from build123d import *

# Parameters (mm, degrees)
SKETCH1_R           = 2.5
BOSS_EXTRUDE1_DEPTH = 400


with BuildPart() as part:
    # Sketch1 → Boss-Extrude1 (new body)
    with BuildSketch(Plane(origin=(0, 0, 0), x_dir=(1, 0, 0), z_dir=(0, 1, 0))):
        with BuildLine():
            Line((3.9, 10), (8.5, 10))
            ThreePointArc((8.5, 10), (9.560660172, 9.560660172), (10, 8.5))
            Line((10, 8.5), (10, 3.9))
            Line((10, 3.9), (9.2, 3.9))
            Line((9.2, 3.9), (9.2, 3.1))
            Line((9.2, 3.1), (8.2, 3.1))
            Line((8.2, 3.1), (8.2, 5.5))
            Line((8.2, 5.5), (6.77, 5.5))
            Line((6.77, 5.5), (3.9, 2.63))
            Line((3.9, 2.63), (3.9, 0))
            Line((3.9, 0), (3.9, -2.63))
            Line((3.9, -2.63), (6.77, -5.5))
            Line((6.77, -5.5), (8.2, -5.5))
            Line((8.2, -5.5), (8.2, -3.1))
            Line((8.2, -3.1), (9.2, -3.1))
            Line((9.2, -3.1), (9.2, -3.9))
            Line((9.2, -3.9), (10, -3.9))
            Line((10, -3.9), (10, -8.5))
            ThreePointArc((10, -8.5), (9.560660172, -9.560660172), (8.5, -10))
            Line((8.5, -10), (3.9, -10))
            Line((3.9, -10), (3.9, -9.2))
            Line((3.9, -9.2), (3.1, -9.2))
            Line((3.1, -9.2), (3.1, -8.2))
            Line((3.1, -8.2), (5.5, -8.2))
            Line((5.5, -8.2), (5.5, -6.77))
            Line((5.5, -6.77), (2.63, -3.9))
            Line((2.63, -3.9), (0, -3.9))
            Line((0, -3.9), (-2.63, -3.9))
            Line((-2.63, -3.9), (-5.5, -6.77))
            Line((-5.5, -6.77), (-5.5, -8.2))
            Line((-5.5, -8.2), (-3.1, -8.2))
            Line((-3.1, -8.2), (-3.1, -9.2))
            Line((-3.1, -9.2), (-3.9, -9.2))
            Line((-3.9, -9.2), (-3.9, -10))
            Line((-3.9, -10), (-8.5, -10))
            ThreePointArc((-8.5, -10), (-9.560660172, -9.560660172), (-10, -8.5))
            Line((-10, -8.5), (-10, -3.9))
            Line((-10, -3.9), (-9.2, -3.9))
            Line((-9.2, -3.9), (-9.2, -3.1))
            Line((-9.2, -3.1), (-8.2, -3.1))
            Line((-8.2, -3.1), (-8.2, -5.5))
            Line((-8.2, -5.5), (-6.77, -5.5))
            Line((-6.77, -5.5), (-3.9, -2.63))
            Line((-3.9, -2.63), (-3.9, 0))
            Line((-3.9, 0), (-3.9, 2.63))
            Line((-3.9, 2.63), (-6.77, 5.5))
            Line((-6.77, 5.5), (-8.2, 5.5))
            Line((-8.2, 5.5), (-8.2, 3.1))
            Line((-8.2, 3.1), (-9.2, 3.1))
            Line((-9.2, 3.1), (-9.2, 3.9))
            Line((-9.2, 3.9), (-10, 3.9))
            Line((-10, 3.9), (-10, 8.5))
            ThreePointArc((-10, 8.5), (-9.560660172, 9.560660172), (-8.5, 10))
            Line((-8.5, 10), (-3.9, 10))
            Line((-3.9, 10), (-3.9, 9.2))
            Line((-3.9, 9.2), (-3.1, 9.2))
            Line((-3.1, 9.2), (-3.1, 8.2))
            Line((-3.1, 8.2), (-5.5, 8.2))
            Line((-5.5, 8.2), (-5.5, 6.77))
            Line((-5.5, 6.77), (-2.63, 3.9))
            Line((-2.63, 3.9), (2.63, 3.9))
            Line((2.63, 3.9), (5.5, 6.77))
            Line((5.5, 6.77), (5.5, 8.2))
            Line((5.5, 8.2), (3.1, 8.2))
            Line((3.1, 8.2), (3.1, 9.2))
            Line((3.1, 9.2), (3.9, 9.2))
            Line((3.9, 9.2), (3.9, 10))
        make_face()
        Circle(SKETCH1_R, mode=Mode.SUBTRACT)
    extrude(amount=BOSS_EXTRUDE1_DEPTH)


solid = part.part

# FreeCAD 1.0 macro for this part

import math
import FreeCAD as App
import Part
import Sketcher

V = App.Vector

doc = App.newDocument("Part")
body = doc.addObject("PartDesign::Body", "Body")

# Sketch on XZ plane
sketch1 = body.newObject("Sketcher::SketchObject", "Sketch")
sketch1.AttachmentSupport = (doc.getObject("XZ_Plane"), [""])
sketch1.MapMode = "FlatFace"
sketch1.addGeometry([
    Part.LineSegment(V(8.5, -10, 0), V(3.9, -10, 0)),  # 0
    Part.LineSegment(V(3.9, -10, 0), V(3.9, -9.2, 0)),  # 1
    Part.LineSegment(V(3.9, -9.2, 0), V(3.1, -9.2, 0)),  # 2
    Part.LineSegment(V(3.1, -9.2, 0), V(3.1, -8.2, 0)),  # 3
    Part.LineSegment(V(3.1, -8.2, 0), V(5.5, -8.2, 0)),  # 4
    Part.LineSegment(V(5.5, -8.2, 0), V(5.5, -6.8, 0)),  # 5
    Part.LineSegment(V(5.5, -6.8, 0), V(2.6, -3.9, 0)),  # 6
    Part.LineSegment(V(2.6, -3.9, 0), V(-2.6, -3.9, 0)),  # 7
    Part.LineSegment(V(-2.6, -3.9, 0), V(-5.5, -6.8, 0)),  # 8
    Part.LineSegment(V(-5.5, -6.8, 0), V(-5.5, -8.2, 0)),  # 9
    Part.LineSegment(V(-5.5, -8.2, 0), V(-3.1, -8.2, 0)),  # 10
    Part.LineSegment(V(-3.1, -8.2, 0), V(-3.1, -9.2, 0)),  # 11
    Part.LineSegment(V(-3.1, -9.2, 0), V(-3.9, -9.2, 0)),  # 12
    Part.LineSegment(V(-3.9, -9.2, 0), V(-3.9, -10, 0)),  # 13
    Part.LineSegment(V(-3.9, -10, 0), V(-8.5, -10, 0)),  # 14
    Part.ArcOfCircle(Part.Circle(V(-8.5, -8.5, 0), V(0, 0, 1), 1.5), math.radians(180), math.radians(270)),  # 15
    Part.LineSegment(V(-10, -8.5, 0), V(-10, -3.9, 0)),  # 16
    Part.LineSegment(V(-10, -3.9, 0), V(-9.2, -3.9, 0)),  # 17
    Part.LineSegment(V(-9.2, -3.9, 0), V(-9.2, -3.1, 0)),  # 18
    Part.LineSegment(V(-9.2, -3.1, 0), V(-8.2, -3.1, 0)),  # 19
    Part.LineSegment(V(-8.2, -3.1, 0), V(-8.2, -5.5, 0)),  # 20
    Part.LineSegment(V(-8.2, -5.5, 0), V(-6.8, -5.5, 0)),  # 21
    Part.LineSegment(V(-6.8, -5.5, 0), V(-3.9, -2.6, 0)),  # 22
    Part.LineSegment(V(-3.9, -2.6, 0), V(-3.9, 2.6, 0)),  # 23
    Part.LineSegment(V(-3.9, 2.6, 0), V(-6.8, 5.5, 0)),  # 24
    Part.LineSegment(V(-6.8, 5.5, 0), V(-8.2, 5.5, 0)),  # 25
    Part.LineSegment(V(-8.2, 5.5, 0), V(-8.2, 3.1, 0)),  # 26
    Part.LineSegment(V(-8.2, 3.1, 0), V(-9.2, 3.1, 0)),  # 27
    Part.LineSegment(V(-9.2, 3.1, 0), V(-9.2, 3.9, 0)),  # 28
    Part.LineSegment(V(-9.2, 3.9, 0), V(-10, 3.9, 0)),  # 29
    Part.LineSegment(V(-10, 3.9, 0), V(-10, 8.5, 0)),  # 30
    Part.ArcOfCircle(Part.Circle(V(-8.5, 8.5, 0), V(0, 0, 1), 1.5), math.radians(90), math.radians(180)),  # 31
    Part.LineSegment(V(-8.5, 10, 0), V(-3.9, 10, 0)),  # 32
    Part.LineSegment(V(-3.9, 10, 0), V(-3.9, 9.2, 0)),  # 33
    Part.LineSegment(V(-3.9, 9.2, 0), V(-3.1, 9.2, 0)),  # 34
    Part.LineSegment(V(-3.1, 9.2, 0), V(-3.1, 8.2, 0)),  # 35
    Part.LineSegment(V(-3.1, 8.2, 0), V(-5.5, 8.2, 0)),  # 36
    Part.LineSegment(V(-5.5, 8.2, 0), V(-5.5, 6.8, 0)),  # 37
    Part.LineSegment(V(-5.5, 6.8, 0), V(-2.6, 3.9, 0)),  # 38
    Part.LineSegment(V(-2.6, 3.9, 0), V(2.6, 3.9, 0)),  # 39
    Part.LineSegment(V(2.6, 3.9, 0), V(5.5, 6.8, 0)),  # 40
    Part.LineSegment(V(5.5, 6.8, 0), V(5.5, 8.2, 0)),  # 41
    Part.LineSegment(V(5.5, 8.2, 0), V(3.1, 8.2, 0)),  # 42
    Part.LineSegment(V(3.1, 8.2, 0), V(3.1, 9.2, 0)),  # 43
    Part.LineSegment(V(3.1, 9.2, 0), V(3.9, 9.2, 0)),  # 44
    Part.LineSegment(V(3.9, 9.2, 0), V(3.9, 10, 0)),  # 45
    Part.LineSegment(V(3.9, 10, 0), V(8.5, 10, 0)),  # 46
    Part.ArcOfCircle(Part.Circle(V(8.5, 8.5, 0), V(0, 0, 1), 1.5), math.radians(0), math.radians(90)),  # 47
    Part.LineSegment(V(10, 8.5, 0), V(10, 3.9, 0)),  # 48
    Part.LineSegment(V(10, 3.9, 0), V(9.2, 3.9, 0)),  # 49
    Part.LineSegment(V(9.2, 3.9, 0), V(9.2, 3.1, 0)),  # 50
    Part.LineSegment(V(9.2, 3.1, 0), V(8.2, 3.1, 0)),  # 51
    Part.LineSegment(V(8.2, 3.1, 0), V(8.2, 5.5, 0)),  # 52
    Part.LineSegment(V(8.2, 5.5, 0), V(6.8, 5.5, 0)),  # 53
    Part.LineSegment(V(6.8, 5.5, 0), V(3.9, 2.6, 0)),  # 54
    Part.LineSegment(V(3.9, 2.6, 0), V(3.9, -2.6, 0)),  # 55
    Part.LineSegment(V(3.9, -2.6, 0), V(6.8, -5.5, 0)),  # 56
    Part.LineSegment(V(6.8, -5.5, 0), V(8.2, -5.5, 0)),  # 57
    Part.LineSegment(V(8.2, -5.5, 0), V(8.2, -3.1, 0)),  # 58
    Part.LineSegment(V(8.2, -3.1, 0), V(9.2, -3.1, 0)),  # 59
    Part.LineSegment(V(9.2, -3.1, 0), V(9.2, -3.9, 0)),  # 60
    Part.LineSegment(V(9.2, -3.9, 0), V(10, -3.9, 0)),  # 61
    Part.LineSegment(V(10, -3.9, 0), V(10, -8.5, 0)),  # 62
    Part.ArcOfCircle(Part.Circle(V(8.5, -8.5, 0), V(0, 0, 1), 1.5), math.radians(-90), math.radians(0)),  # 63
    Part.Circle(V(0, 0, 0), V(0, 0, 1), 2.5),  # 64
], False)
sketch1.addConstraint([
    Sketcher.Constraint("Coincident", 0, 2, 1, 1),
    Sketcher.Constraint("Coincident", 1, 2, 2, 1),
    Sketcher.Constraint("Coincident", 2, 2, 3, 1),
    Sketcher.Constraint("Coincident", 3, 2, 4, 1),
    Sketcher.Constraint("Coincident", 4, 2, 5, 1),
    Sketcher.Constraint("Coincident", 5, 2, 6, 1),
    Sketcher.Constraint("Coincident", 6, 2, 7, 1),
    Sketcher.Constraint("Coincident", 7, 2, 8, 1),
    Sketcher.Constraint("Coincident", 8, 2, 9, 1),
    Sketcher.Constraint("Coincident", 9, 2, 10, 1),
    Sketcher.Constraint("Coincident", 10, 2, 11, 1),
    Sketcher.Constraint("Coincident", 11, 2, 12, 1),
    Sketcher.Constraint("Coincident", 12, 2, 13, 1),
    Sketcher.Constraint("Coincident", 13, 2, 14, 1),
    Sketcher.Constraint("Tangent", 14, 2, 15, 2),
    Sketcher.Constraint("Tangent", 15, 1, 16, 1),
    Sketcher.Constraint("Coincident", 16, 2, 17, 1),
    Sketcher.Constraint("Coincident", 17, 2, 18, 1),
    Sketcher.Constraint("Coincident", 18, 2, 19, 1),
    Sketcher.Constraint("Coincident", 19, 2, 20, 1),
    Sketcher.Constraint("Coincident", 20, 2, 21, 1),
    Sketcher.Constraint("Coincident", 21, 2, 22, 1),
    Sketcher.Constraint("Coincident", 22, 2, 23, 1),
    Sketcher.Constraint("Coincident", 23, 2, 24, 1),
    Sketcher.Constraint("Coincident", 24, 2, 25, 1),
    Sketcher.Constraint("Coincident", 25, 2, 26, 1),
    Sketcher.Constraint("Coincident", 26, 2, 27, 1),
    Sketcher.Constraint("Coincident", 27, 2, 28, 1),
    Sketcher.Constraint("Coincident", 28, 2, 29, 1),
    Sketcher.Constraint("Coincident", 29, 2, 30, 1),
    Sketcher.Constraint("Tangent", 30, 2, 31, 2),
    Sketcher.Constraint("Tangent", 31, 1, 32, 1),
    Sketcher.Constraint("Coincident", 32, 2, 33, 1),
    Sketcher.Constraint("Coincident", 33, 2, 34, 1),
    Sketcher.Constraint("Coincident", 34, 2, 35, 1),
    Sketcher.Constraint("Coincident", 35, 2, 36, 1),
    Sketcher.Constraint("Coincident", 36, 2, 37, 1),
    Sketcher.Constraint("Coincident", 37, 2, 38, 1),
    Sketcher.Constraint("Coincident", 38, 2, 39, 1),
    Sketcher.Constraint("Coincident", 39, 2, 40, 1),
    Sketcher.Constraint("Coincident", 40, 2, 41, 1),
    Sketcher.Constraint("Coincident", 41, 2, 42, 1),
    Sketcher.Constraint("Coincident", 42, 2, 43, 1),
    Sketcher.Constraint("Coincident", 43, 2, 44, 1),
    Sketcher.Constraint("Coincident", 44, 2, 45, 1),
    Sketcher.Constraint("Coincident", 45, 2, 46, 1),
    Sketcher.Constraint("Tangent", 46, 2, 47, 2),
    Sketcher.Constraint("Tangent", 47, 1, 48, 1),
    Sketcher.Constraint("Coincident", 48, 2, 49, 1),
    Sketcher.Constraint("Coincident", 49, 2, 50, 1),
    Sketcher.Constraint("Coincident", 50, 2, 51, 1),
    Sketcher.Constraint("Coincident", 51, 2, 52, 1),
    Sketcher.Constraint("Coincident", 52, 2, 53, 1),
    Sketcher.Constraint("Coincident", 53, 2, 54, 1),
    Sketcher.Constraint("Coincident", 54, 2, 55, 1),
    Sketcher.Constraint("Coincident", 55, 2, 56, 1),
    Sketcher.Constraint("Coincident", 56, 2, 57, 1),
    Sketcher.Constraint("Coincident", 57, 2, 58, 1),
    Sketcher.Constraint("Coincident", 58, 2, 59, 1),
    Sketcher.Constraint("Coincident", 59, 2, 60, 1),
    Sketcher.Constraint("Coincident", 60, 2, 61, 1),
    Sketcher.Constraint("Coincident", 61, 2, 62, 1),
    Sketcher.Constraint("Tangent", 62, 2, 63, 2),
    Sketcher.Constraint("Tangent", 63, 1, 0, 1),
    Sketcher.Constraint("Horizontal", 0),
    Sketcher.Constraint("Vertical", 1),
    Sketcher.Constraint("Horizontal", 2),
    Sketcher.Constraint("Vertical", 3),
    Sketcher.Constraint("Horizontal", 4),
    Sketcher.Constraint("Vertical", 5),
    Sketcher.Constraint("Horizontal", 7),
    Sketcher.Constraint("Vertical", 9),
    Sketcher.Constraint("Horizontal", 10),
    Sketcher.Constraint("Vertical", 11),
    Sketcher.Constraint("Horizontal", 12),
    Sketcher.Constraint("Vertical", 13),
    Sketcher.Constraint("Horizontal", 14),
    Sketcher.Constraint("Vertical", 16),
    Sketcher.Constraint("Horizontal", 17),
    Sketcher.Constraint("Vertical", 18),
    Sketcher.Constraint("Horizontal", 19),
    Sketcher.Constraint("Vertical", 20),
    Sketcher.Constraint("Horizontal", 21),
    Sketcher.Constraint("Vertical", 23),
    Sketcher.Constraint("Horizontal", 25),
    Sketcher.Constraint("Vertical", 26),
    Sketcher.Constraint("Horizontal", 27),
    Sketcher.Constraint("Vertical", 28),
    Sketcher.Constraint("Horizontal", 29),
    Sketcher.Constraint("Vertical", 30),
    Sketcher.Constraint("Horizontal", 32),
    Sketcher.Constraint("Vertical", 33),
    Sketcher.Constraint("Horizontal", 34),
    Sketcher.Constraint("Vertical", 35),
    Sketcher.Constraint("Horizontal", 36),
    Sketcher.Constraint("Vertical", 37),
    Sketcher.Constraint("Horizontal", 39),
    Sketcher.Constraint("Vertical", 41),
    Sketcher.Constraint("Horizontal", 42),
    Sketcher.Constraint("Vertical", 43),
    Sketcher.Constraint("Horizontal", 44),
    Sketcher.Constraint("Vertical", 45),
    Sketcher.Constraint("Horizontal", 46),
    Sketcher.Constraint("Vertical", 48),
    Sketcher.Constraint("Horizontal", 49),
    Sketcher.Constraint("Vertical", 50),
    Sketcher.Constraint("Horizontal", 51),
    Sketcher.Constraint("Vertical", 52),
    Sketcher.Constraint("Horizontal", 53),
    Sketcher.Constraint("Vertical", 55),
    Sketcher.Constraint("Horizontal", 57),
    Sketcher.Constraint("Vertical", 58),
    Sketcher.Constraint("Horizontal", 59),
    Sketcher.Constraint("Vertical", 60),
    Sketcher.Constraint("Horizontal", 61),
    Sketcher.Constraint("Vertical", 62),
    Sketcher.Constraint("Coincident", 64, 3, -1, 1),
    Sketcher.Constraint("Equal", 15, 31),
    Sketcher.Constraint("Equal", 31, 47),
    Sketcher.Constraint("Equal", 47, 63),
    Sketcher.Constraint("Symmetric", 15, 3, 47, 3, -1, 1),
    Sketcher.Constraint("Symmetric", 31, 3, 63, 3, -1, 1),
    Sketcher.Constraint("Symmetric", 1, 2, 33, 2, -1, 1),
    Sketcher.Constraint("Symmetric", 3, 2, 35, 2, -1, 1),
    Sketcher.Constraint("Symmetric", 5, 2, 37, 2, -1, 1),
    Sketcher.Constraint("Symmetric", 6, 2, 38, 2, -1, 1),
    Sketcher.Constraint("Symmetric", 8, 2, 40, 2, -1, 1),
    Sketcher.Constraint("Symmetric", 10, 2, 42, 2, -1, 1),
    Sketcher.Constraint("Symmetric", 12, 2, 44, 2, -1, 1),
    Sketcher.Constraint("Symmetric", 17, 2, 49, 2, -1, 1),
    Sketcher.Constraint("Symmetric", 19, 2, 51, 2, -1, 1),
    Sketcher.Constraint("Symmetric", 21, 2, 53, 2, -1, 1),
    Sketcher.Constraint("Symmetric", 22, 2, 54, 2, -1, 1),
    Sketcher.Constraint("Symmetric", 24, 2, 56, 2, -1, 1),
    Sketcher.Constraint("Symmetric", 26, 2, 58, 2, -1, 1),
    Sketcher.Constraint("Symmetric", 28, 2, 60, 2, -1, 1),
    Sketcher.Constraint("Symmetric", 31, 3, 47, 3, -2),
    Sketcher.Constraint("Symmetric", 5, 2, 8, 2, -2),
    Sketcher.Constraint("Symmetric", 3, 2, 10, 2, -2),
    Sketcher.Constraint("Symmetric", 1, 2, 12, 2, -2),
    Sketcher.Constraint("Symmetric", 28, 2, 49, 2, -2),
    Sketcher.Constraint("Symmetric", 26, 2, 51, 2, -2),
    Sketcher.Constraint("Symmetric", 24, 2, 53, 2, -2),
    Sketcher.Constraint("Perpendicular", 6, 8),
    Sketcher.Constraint("Parallel", 8, 22),
    Sketcher.Constraint("Perpendicular", 22, 24),
    Sketcher.Constraint("Perpendicular", 38, 40),
    Sketcher.Constraint("Perpendicular", 54, 56),
    Sketcher.Constraint("Horizontal", 7, 2, 16, 2),
    Sketcher.Constraint("Horizontal", 23, 2, 54, 2),
    Sketcher.Constraint("Vertical", 13, 2, 22, 2),
    Sketcher.Constraint("Equal", 12, 17),
    Sketcher.Constraint("Equal", 61, 1),
    Sketcher.Constraint("Equal", 59, 3),
    Sketcher.Constraint("Equal", 57, 5),
    Sketcher.Constraint("Equal", 46, 16),
    Sketcher.Constraint("Equal", 13, 18),
    Sketcher.Constraint("Equal", 42, 20),
    Sketcher.Constraint("Equal", 39, 23),
    Sketcher.Constraint("Diameter", 64, 5.0),
    Sketcher.Constraint("Radius", 15, 1.5),
    Sketcher.Constraint("DistanceX", 19, 1, 19, 2, 1.0),
    Sketcher.Constraint("DistanceX", 0, 2, 0, 1, 4.6),
    Sketcher.Constraint("DistanceX", 2, 2, 2, 1, 0.8),
    Sketcher.Constraint("DistanceX", 4, 1, 4, 2, 2.4),
    Sketcher.Constraint("DistanceY", 0, 2, -1, 1, 10.0),
    Sketcher.Constraint("DistanceX", 7, 2, 7, 1, 5.26),
])
pad1 = body.newObject("PartDesign::Pad", "Pad")
pad1.Profile = sketch1
pad1.Length = 400
pad1.Reversed = True

doc.recompute()
